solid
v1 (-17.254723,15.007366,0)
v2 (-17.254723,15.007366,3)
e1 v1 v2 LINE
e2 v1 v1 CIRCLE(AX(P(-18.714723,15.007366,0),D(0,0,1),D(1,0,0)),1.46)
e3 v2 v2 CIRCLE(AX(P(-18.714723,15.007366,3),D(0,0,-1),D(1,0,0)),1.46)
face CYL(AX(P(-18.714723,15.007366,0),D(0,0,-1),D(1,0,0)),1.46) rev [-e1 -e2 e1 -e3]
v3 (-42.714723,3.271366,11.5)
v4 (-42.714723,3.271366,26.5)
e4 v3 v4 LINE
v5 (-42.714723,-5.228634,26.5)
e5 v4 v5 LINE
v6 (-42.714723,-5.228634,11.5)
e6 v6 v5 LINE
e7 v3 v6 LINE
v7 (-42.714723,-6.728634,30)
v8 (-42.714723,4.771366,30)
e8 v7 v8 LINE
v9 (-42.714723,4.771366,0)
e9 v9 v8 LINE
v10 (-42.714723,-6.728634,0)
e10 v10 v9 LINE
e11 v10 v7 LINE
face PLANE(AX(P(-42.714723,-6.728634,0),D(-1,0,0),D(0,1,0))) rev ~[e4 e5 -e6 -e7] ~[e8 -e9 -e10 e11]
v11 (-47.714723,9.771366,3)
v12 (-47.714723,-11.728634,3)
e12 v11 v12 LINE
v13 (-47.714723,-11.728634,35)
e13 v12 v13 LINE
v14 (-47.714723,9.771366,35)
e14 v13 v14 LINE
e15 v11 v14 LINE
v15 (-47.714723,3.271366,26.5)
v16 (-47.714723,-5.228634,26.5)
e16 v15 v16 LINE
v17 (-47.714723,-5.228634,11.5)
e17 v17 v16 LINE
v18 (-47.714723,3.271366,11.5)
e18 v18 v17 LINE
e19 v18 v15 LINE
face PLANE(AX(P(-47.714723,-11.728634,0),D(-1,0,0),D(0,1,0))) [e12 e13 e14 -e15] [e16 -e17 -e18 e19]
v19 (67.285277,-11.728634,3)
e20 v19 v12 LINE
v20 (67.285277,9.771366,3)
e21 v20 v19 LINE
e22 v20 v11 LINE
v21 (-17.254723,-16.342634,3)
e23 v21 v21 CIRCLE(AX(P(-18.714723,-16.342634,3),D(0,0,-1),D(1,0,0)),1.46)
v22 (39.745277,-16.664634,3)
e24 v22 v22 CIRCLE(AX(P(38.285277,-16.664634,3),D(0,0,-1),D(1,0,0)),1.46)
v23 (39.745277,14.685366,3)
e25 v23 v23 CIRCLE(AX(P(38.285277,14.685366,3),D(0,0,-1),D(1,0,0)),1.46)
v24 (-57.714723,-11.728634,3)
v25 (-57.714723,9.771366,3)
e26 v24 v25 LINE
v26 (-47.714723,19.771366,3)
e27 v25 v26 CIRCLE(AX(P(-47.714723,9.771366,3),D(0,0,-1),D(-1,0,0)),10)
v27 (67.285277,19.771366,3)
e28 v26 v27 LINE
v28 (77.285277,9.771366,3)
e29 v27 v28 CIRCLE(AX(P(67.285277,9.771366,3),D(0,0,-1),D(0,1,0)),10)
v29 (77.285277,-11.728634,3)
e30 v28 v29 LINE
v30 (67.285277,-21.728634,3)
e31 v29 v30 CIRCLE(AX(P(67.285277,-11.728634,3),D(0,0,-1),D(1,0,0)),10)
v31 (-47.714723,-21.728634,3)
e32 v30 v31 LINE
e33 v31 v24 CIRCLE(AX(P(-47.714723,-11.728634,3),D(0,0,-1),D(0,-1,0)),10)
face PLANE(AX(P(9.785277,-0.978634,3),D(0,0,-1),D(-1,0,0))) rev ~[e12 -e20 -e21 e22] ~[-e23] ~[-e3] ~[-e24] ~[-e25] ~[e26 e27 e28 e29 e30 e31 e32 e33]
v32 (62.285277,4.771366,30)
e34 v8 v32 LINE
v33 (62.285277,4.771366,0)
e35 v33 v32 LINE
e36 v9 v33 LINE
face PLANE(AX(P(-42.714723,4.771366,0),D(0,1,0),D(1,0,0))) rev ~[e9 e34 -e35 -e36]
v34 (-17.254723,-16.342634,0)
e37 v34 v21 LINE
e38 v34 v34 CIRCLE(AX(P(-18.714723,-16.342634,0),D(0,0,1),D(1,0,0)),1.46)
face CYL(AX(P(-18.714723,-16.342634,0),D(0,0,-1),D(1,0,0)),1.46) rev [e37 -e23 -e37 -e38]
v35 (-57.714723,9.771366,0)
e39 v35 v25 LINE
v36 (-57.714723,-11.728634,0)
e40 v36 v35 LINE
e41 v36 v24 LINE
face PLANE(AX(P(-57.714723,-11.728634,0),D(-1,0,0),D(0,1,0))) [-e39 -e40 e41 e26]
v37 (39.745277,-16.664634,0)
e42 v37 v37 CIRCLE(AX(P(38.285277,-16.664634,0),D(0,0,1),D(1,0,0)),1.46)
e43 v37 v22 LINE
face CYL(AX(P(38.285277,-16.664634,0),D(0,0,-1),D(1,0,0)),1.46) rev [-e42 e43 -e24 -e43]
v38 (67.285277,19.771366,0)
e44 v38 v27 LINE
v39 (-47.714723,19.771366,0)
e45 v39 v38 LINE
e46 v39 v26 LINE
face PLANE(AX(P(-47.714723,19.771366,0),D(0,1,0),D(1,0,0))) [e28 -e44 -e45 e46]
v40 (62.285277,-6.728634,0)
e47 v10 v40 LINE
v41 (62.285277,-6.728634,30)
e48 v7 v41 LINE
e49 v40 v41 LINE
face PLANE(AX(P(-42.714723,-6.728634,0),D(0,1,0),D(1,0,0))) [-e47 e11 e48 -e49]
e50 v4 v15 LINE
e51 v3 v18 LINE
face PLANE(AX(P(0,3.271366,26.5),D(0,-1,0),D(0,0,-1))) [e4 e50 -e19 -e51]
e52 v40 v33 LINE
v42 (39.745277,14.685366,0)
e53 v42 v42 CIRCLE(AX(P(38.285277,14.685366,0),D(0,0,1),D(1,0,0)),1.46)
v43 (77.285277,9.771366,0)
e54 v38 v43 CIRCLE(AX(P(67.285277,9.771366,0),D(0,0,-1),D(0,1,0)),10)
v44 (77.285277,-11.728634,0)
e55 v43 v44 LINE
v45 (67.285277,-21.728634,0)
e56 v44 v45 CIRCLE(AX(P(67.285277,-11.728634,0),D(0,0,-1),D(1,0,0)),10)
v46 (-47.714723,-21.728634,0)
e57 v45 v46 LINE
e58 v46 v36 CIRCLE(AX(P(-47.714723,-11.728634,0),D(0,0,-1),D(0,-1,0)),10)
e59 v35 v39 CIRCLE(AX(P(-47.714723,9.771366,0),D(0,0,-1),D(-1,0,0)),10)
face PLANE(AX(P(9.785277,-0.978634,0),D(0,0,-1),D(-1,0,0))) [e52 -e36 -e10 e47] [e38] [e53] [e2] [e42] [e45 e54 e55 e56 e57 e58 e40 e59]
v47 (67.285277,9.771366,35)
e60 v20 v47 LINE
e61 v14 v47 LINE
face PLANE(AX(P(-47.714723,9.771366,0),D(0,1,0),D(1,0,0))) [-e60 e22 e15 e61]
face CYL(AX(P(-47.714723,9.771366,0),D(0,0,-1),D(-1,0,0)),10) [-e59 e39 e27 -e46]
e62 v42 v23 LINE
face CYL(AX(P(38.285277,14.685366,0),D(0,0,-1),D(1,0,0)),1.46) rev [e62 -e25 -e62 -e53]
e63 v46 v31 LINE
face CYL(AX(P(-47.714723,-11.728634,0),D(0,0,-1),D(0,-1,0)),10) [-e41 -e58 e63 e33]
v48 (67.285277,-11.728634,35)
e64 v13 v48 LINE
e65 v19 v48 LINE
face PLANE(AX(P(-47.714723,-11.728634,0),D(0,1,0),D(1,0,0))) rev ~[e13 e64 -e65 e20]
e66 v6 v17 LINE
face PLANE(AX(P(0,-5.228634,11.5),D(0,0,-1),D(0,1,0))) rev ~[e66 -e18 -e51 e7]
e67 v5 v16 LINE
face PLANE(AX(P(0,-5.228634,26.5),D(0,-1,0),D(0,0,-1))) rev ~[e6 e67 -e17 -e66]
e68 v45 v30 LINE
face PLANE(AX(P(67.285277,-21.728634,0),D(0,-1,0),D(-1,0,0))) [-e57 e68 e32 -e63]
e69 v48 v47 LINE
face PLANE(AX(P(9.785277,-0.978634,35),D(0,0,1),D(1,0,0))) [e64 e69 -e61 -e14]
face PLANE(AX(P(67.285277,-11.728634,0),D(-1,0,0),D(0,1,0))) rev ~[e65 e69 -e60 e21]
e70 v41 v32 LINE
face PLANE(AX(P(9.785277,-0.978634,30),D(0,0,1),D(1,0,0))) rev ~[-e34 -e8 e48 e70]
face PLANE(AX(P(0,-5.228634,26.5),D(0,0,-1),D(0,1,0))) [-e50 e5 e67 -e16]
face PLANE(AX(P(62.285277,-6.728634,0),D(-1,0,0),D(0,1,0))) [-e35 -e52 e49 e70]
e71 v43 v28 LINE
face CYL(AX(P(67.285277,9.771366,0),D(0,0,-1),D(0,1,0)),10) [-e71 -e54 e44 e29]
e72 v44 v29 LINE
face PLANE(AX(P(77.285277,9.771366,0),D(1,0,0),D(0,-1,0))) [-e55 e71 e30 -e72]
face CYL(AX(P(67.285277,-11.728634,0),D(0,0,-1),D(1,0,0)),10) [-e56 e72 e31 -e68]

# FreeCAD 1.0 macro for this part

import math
import FreeCAD as App
import Part
import Sketcher
from FreeCAD import Vector

doc = App.newDocument("Part")
body = doc.addObject("PartDesign::Body", "Body")

sketch1 = body.newObject("Sketcher::SketchObject", "Sketch")
sketch1.AttachmentSupport = (doc.getObject("XY_Plane"), [""])
sketch1.MapMode = "FlatFace"
sketch1.addGeometry(Part.LineSegment(Vector(-47.714723, 9.771366, 0), Vector(-47.714723, -11.728634, 0)), False)
sketch1.addGeometry(Part.LineSegment(Vector(-47.714723, -11.728634, 0), Vector(67.285277, -11.728634, 0)), False)
sketch1.addGeometry(Part.LineSegment(Vector(67.285277, -11.728634, 0), Vector(67.285277, 9.771366, 0)), False)
sketch1.addGeometry(Part.LineSegment(Vector(67.285277, 9.771366, 0), Vector(-47.714723, 9.771366, 0)), False)
sketch1.addConstraint(Sketcher.Constraint("Coincident", 0, 2, 1, 1))
sketch1.addConstraint(Sketcher.Constraint("Coincident", 1, 2, 2, 1))
sketch1.addConstraint(Sketcher.Constraint("Coincident", 2, 2, 3, 1))
sketch1.addConstraint(Sketcher.Constraint("Coincident", 3, 2, 0, 1))
sketch1.addConstraint(Sketcher.Constraint("Vertical", 0))
sketch1.addConstraint(Sketcher.Constraint("Horizontal", 1))
sketch1.addConstraint(Sketcher.Constraint("Vertical", 2))
sketch1.addConstraint(Sketcher.Constraint("Horizontal", 3))
sketch1.addConstraint(Sketcher.Constraint("DistanceX", 1, 1, 1, 2, 115.0))
sketch1.addConstraint(Sketcher.Constraint("DistanceY", 0, 2, 0, 1, 21.5))
sketch1.addConstraint(Sketcher.Constraint("DistanceX", 0, 2, -1, 1, 47.714723))
sketch1.addConstraint(Sketcher.Constraint("DistanceY", 0, 2, -1, 1, 11.728634))
pad1 = body.newObject("PartDesign::Pad", "Pad")
pad1.Profile = sketch1
pad1.Length = 35

sketch2 = body.newObject("Sketcher::SketchObject", "Sketch001")
sketch2.AttachmentSupport = (doc.getObject("XY_Plane"), [""])
sketch2.MapMode = "FlatFace"
sketch2.addGeometry(Part.LineSegment(Vector(67.285277, 19.771366, 0), Vector(-47.714723, 19.771366, 0)), False)
sketch2.addGeometry(Part.ArcOfCircle(Part.Circle(Vector(-47.714723, 9.771366, 0), Vector(0, 0, 1), 10), math.radians(90), math.radians(180)), False)
sketch2.addGeometry(Part.LineSegment(Vector(-57.714723, 9.771366, 0), Vector(-57.714723, -11.728634, 0)), False)
sketch2.addGeometry(Part.ArcOfCircle(Part.Circle(Vector(-47.714723, -11.728634, 0), Vector(0, 0, 1), 10), math.radians(180), math.radians(270)), False)
sketch2.addGeometry(Part.LineSegment(Vector(-47.714723, -21.728634, 0), Vector(67.285277, -21.728634, 0)), False)
sketch2.addGeometry(Part.ArcOfCircle(Part.Circle(Vector(67.285277, -11.728634, 0), Vector(0, 0, 1), 10), math.radians(-90), math.radians(0)), False)
sketch2.addGeometry(Part.LineSegment(Vector(77.285277, -11.728634, 0), Vector(77.285277, 9.771366, 0)), False)
sketch2.addGeometry(Part.ArcOfCircle(Part.Circle(Vector(67.285277, 9.771366, 0), Vector(0, 0, 1), 10), math.radians(0), math.radians(90)), False)
sketch2.addConstraint(Sketcher.Constraint("Tangent", 0, 2, 1, 1))
sketch2.addConstraint(Sketcher.Constraint("Tangent", 1, 2, 2, 1))
sketch2.addConstraint(Sketcher.Constraint("Tangent", 2, 2, 3, 1))
sketch2.addConstraint(Sketcher.Constraint("Tangent", 3, 2, 4, 1))
sketch2.addConstraint(Sketcher.Constraint("Tangent", 4, 2, 5, 1))
sketch2.addConstraint(Sketcher.Constraint("Tangent", 5, 2, 6, 1))
sketch2.addConstraint(Sketcher.Constraint("Tangent", 6, 2, 7, 1))
sketch2.addConstraint(Sketcher.Constraint("Tangent", 7, 2, 0, 1))
sketch2.addConstraint(Sketcher.Constraint("Horizontal", 0))
sketch2.addConstraint(Sketcher.Constraint("Vertical", 2))
sketch2.addConstraint(Sketcher.Constraint("Horizontal", 4))
sketch2.addConstraint(Sketcher.Constraint("Vertical", 6))
sketch2.addConstraint(Sketcher.Constraint("Equal", 1, 3))
sketch2.addConstraint(Sketcher.Constraint("Equal", 3, 5))
sketch2.addConstraint(Sketcher.Constraint("Equal", 5, 7))
sketch2.addConstraint(Sketcher.Constraint("Radius", 1, 10.0))
sketch2.addConstraint(Sketcher.Constraint("DistanceX", 0, 2, 0, 1, 115.0))
sketch2.addConstraint(Sketcher.Constraint("DistanceY", 2, 2, 2, 1, 21.5))
sketch2.addConstraint(Sketcher.Constraint("DistanceX", 1, 3, -1, 1, 47.714723))
sketch2.addConstraint(Sketcher.Constraint("DistanceY", -1, 1, 1, 3, 9.771366))
pad2 = body.newObject("PartDesign::Pad", "Pad001")
pad2.Profile = sketch2
pad2.Length = 3

sketch3 = body.newObject("Sketcher::SketchObject", "Sketch002")
sketch3.AttachmentSupport = (doc.getObject("XY_Plane"), [""])
sketch3.MapMode = "FlatFace"
sketch3.addGeometry(Part.LineSegment(Vector(-42.714723, 4.771366, 0), Vector(-42.714723, -6.728634, 0)), False)
sketch3.addGeometry(Part.LineSegment(Vector(-42.714723, -6.728634, 0), Vector(62.285277, -6.728634, 0)), False)
sketch3.addGeometry(Part.LineSegment(Vector(62.285277, -6.728634, 0), Vector(62.285277, 4.771366, 0)), False)
sketch3.addGeometry(Part.LineSegment(Vector(62.285277, 4.771366, 0), Vector(-42.714723, 4.771366, 0)), False)
sketch3.addConstraint(Sketcher.Constraint("Coincident", 0, 2, 1, 1))
sketch3.addConstraint(Sketcher.Constraint("Coincident", 1, 2, 2, 1))
sketch3.addConstraint(Sketcher.Constraint("Coincident", 2, 2, 3, 1))
sketch3.addConstraint(Sketcher.Constraint("Coincident", 3, 2, 0, 1))
sketch3.addConstraint(Sketcher.Constraint("Vertical", 0))
sketch3.addConstraint(Sketcher.Constraint("Horizontal", 1))
sketch3.addConstraint(Sketcher.Constraint("Vertical", 2))
sketch3.addConstraint(Sketcher.Constraint("Horizontal", 3))
sketch3.addConstraint(Sketcher.Constraint("DistanceX", 1, 1, 1, 2, 105.0))
sketch3.addConstraint(Sketcher.Constraint("DistanceY", 0, 2, 0, 1, 11.5))
sketch3.addConstraint(Sketcher.Constraint("DistanceX", 0, 2, -1, 1, 42.714723))
sketch3.addConstraint(Sketcher.Constraint("DistanceY", 0, 2, -1, 1, 6.728634))
pocket1 = body.newObject("PartDesign::Pocket", "Pocket")
pocket1.Profile = sketch3
pocket1.Length = 30
pocket1.Reversed = True

sketch4 = body.newObject("Sketcher::SketchObject", "Sketch003")
sketch4.AttachmentSupport = (doc.getObject("XY_Plane"), [""])
sketch4.MapMode = "FlatFace"
sketch4.addGeometry(Part.Circle(Vector(38.285277, 14.685366, 0), Vector(0, 0, 1), 1.46), False)
sketch4.addGeometry(Part.Circle(Vector(-18.714723, 15.007366, 0), Vector(0, 0, 1), 1.46), False)
sketch4.addGeometry(Part.Circle(Vector(-18.714723, -16.342634, 0), Vector(0, 0, 1), 1.46), False)
sketch4.addGeometry(Part.Circle(Vector(38.285277, -16.664634, 0), Vector(0, 0, 1), 1.46), False)
sketch4.addConstraint(Sketcher.Constraint("Equal", 0, 1))
sketch4.addConstraint(Sketcher.Constraint("Equal", 1, 2))
sketch4.addConstraint(Sketcher.Constraint("Equal", 2, 3))
sketch4.addConstraint(Sketcher.Constraint("Vertical", 1, 3, 2, 3))
sketch4.addConstraint(Sketcher.Constraint("Vertical", 0, 3, 3, 3))
sketch4.addConstraint(Sketcher.Constraint("Diameter", 0, 2.92))
sketch4.addConstraint(Sketcher.Constraint("DistanceX", 1, 3, 0, 3, 57.0))
sketch4.addConstraint(Sketcher.Constraint("DistanceY", 2, 3, 1, 3, 31.35))
sketch4.addConstraint(Sketcher.Constraint("DistanceY", 3, 3, 0, 3, 31.35))
sketch4.addConstraint(Sketcher.Constraint("DistanceY", 0, 3, 1, 3, 0.322))
sketch4.addConstraint(Sketcher.Constraint("DistanceX", -1, 1, 0, 3, 38.285277))
sketch4.addConstraint(Sketcher.Constraint("DistanceY", -1, 1, 0, 3, 14.685366))
pocket2 = body.newObject("PartDesign::Pocket", "Pocket001")
pocket2.Profile = sketch4
pocket2.Length = 33
pocket2.Reversed = True

sketch5 = body.newObject("Sketcher::SketchObject", "Sketch004")
sketch5.AttachmentSupport = (doc.getObject("YZ_Plane"), [""])
sketch5.MapMode = "FlatFace"
sketch5.addGeometry(Part.LineSegment(Vector(3.271366, 26.5, 0), Vector(-5.228634, 26.5, 0)), False)
sketch5.addGeometry(Part.LineSegment(Vector(-5.228634, 26.5, 0), Vector(-5.228634, 11.5, 0)), False)
sketch5.addGeometry(Part.LineSegment(Vector(-5.228634, 11.5, 0), Vector(3.271366, 11.5, 0)), False)
sketch5.addGeometry(Part.LineSegment(Vector(3.271366, 11.5, 0), Vector(3.271366, 26.5, 0)), False)
sketch5.addConstraint(Sketcher.Constraint("Coincident", 0, 2, 1, 1))
sketch5.addConstraint(Sketcher.Constraint("Coincident", 1, 2, 2, 1))
sketch5.addConstraint(Sketcher.Constraint("Coincident", 2, 2, 3, 1))
sketch5.addConstraint(Sketcher.Constraint("Coincident", 3, 2, 0, 1))
sketch5.addConstraint(Sketcher.Constraint("Horizontal", 0))
sketch5.addConstraint(Sketcher.Constraint("Vertical", 1))
sketch5.addConstraint(Sketcher.Constraint("Horizontal", 2))
sketch5.addConstraint(Sketcher.Constraint("Vertical", 3))
sketch5.addConstraint(Sketcher.Constraint("DistanceY", 1, 2, 1, 1, 15.0))
sketch5.addConstraint(Sketcher.Constraint("DistanceX", 0, 2, 0, 1, 8.5))
sketch5.addConstraint(Sketcher.Constraint("DistanceY", -1, 1, 0, 2, 26.5))
sketch5.addConstraint(Sketcher.Constraint("DistanceX", 0, 2, -1, 1, 5.228634))
pocket3 = body.newObject("PartDesign::Pocket", "Pocket002")
pocket3.Profile = sketch5
pocket3.Length = 88

doc.recompute()
